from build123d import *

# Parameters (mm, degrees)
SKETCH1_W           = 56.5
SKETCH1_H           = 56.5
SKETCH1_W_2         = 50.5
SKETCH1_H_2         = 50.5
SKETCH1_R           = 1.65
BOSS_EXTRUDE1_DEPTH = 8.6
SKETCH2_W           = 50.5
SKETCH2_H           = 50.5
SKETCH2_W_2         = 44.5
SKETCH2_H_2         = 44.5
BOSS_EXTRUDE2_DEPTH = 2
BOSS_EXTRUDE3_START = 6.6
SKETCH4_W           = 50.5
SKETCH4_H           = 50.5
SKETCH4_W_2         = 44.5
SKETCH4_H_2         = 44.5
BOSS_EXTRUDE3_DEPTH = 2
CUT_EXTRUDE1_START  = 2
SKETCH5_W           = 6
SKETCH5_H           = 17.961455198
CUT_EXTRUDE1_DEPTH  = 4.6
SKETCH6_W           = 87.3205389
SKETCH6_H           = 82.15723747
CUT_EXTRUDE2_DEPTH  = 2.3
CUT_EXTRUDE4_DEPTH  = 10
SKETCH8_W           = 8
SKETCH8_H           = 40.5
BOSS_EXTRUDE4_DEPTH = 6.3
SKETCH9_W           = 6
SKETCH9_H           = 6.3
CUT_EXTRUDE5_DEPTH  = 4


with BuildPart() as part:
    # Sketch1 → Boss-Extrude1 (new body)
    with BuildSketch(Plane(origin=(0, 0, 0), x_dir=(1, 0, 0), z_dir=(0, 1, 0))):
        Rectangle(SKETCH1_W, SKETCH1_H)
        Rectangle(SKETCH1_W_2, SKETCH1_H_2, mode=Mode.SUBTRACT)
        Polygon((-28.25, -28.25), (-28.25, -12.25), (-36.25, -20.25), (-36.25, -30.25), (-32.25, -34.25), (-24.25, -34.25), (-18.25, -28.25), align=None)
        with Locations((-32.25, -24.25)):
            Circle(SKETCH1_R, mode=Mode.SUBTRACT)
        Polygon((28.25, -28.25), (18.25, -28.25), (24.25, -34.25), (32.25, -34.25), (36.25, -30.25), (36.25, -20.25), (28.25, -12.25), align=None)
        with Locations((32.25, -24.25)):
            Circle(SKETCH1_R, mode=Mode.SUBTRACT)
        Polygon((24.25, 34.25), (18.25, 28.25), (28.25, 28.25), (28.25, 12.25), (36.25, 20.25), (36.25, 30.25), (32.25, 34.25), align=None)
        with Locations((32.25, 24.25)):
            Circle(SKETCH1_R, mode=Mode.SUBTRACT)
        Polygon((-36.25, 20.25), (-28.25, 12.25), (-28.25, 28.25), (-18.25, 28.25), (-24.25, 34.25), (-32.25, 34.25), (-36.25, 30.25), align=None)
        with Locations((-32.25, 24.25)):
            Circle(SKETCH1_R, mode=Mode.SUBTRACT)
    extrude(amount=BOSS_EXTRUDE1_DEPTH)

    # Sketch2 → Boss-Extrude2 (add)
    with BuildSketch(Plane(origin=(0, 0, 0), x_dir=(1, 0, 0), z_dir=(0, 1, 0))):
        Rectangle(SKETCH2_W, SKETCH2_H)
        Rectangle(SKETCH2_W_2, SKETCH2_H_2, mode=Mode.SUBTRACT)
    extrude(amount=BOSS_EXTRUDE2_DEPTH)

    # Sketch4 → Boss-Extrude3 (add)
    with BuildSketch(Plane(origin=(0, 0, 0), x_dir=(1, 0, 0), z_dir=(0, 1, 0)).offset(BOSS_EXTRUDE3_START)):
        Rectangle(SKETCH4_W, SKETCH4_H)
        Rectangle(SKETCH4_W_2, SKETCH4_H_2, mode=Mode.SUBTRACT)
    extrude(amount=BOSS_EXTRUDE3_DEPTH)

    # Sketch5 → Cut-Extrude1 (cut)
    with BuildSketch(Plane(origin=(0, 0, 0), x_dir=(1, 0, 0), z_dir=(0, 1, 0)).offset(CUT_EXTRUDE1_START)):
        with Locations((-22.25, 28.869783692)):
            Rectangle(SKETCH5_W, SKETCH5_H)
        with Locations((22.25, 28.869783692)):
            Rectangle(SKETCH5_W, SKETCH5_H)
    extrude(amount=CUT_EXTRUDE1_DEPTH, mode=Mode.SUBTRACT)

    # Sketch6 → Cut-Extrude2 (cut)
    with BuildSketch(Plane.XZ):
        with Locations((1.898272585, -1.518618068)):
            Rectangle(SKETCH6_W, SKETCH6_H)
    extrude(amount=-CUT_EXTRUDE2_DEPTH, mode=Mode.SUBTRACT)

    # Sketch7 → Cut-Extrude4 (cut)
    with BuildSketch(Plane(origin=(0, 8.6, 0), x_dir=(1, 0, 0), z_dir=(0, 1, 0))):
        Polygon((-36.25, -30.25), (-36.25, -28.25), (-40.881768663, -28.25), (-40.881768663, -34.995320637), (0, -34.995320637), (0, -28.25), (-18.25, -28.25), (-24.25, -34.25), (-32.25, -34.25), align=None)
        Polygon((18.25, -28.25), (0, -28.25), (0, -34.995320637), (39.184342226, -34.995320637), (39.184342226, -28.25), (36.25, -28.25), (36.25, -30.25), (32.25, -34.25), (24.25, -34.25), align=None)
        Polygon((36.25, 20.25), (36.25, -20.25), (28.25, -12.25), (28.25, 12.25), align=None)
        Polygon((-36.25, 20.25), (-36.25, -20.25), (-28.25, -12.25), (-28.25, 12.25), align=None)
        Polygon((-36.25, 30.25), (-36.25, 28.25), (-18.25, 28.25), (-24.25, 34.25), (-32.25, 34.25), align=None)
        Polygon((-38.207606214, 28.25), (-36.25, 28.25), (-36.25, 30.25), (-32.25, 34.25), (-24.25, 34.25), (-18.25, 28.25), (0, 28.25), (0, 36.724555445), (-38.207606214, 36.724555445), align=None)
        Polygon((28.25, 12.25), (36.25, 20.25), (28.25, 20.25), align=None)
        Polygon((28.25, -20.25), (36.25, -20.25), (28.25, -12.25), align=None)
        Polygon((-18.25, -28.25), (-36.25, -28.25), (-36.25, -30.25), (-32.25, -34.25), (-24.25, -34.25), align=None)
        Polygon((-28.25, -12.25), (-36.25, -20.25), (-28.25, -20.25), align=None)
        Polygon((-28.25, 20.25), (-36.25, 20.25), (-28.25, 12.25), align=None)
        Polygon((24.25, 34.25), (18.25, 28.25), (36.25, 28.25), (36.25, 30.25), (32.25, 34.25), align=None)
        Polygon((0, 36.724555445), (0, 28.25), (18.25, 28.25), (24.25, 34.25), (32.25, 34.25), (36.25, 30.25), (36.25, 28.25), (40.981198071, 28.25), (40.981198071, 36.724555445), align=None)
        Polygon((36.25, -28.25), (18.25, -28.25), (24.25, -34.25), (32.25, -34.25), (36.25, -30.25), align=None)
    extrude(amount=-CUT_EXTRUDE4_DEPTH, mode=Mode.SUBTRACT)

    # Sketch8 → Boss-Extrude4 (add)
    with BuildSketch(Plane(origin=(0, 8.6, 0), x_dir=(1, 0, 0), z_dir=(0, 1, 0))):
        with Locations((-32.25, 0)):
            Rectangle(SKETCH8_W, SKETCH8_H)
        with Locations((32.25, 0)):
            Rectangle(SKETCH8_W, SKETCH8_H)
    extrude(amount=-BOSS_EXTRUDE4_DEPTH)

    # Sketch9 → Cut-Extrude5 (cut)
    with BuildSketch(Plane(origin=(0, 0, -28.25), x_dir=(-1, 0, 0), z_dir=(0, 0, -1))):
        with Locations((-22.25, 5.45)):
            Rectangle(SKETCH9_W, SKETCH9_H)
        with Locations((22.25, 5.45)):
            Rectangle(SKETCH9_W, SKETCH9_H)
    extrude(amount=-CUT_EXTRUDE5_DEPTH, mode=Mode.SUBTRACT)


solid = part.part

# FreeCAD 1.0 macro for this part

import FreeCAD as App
import Part
import Sketcher
from FreeCAD import Vector
Q = App.Units.Quantity

doc = App.newDocument("Part")
body = doc.addObject("PartDesign::Body", "Body")

sketch1 = body.newObject("Sketcher::SketchObject", "Sketch")
sketch1.AttachmentSupport = (doc.getObject("XZ_Plane"), [""])
sketch1.MapMode = "FlatFace"
sketch1.addGeometry([
    Part.LineSegment(Vector(-28.25, -12.25, 0), Vector(-28.25, 12.25, 0)),
    Part.LineSegment(Vector(-28.25, 12.25, 0), Vector(-36.25, 20.25, 0)),
    Part.LineSegment(Vector(-36.25, 20.25, 0), Vector(-36.25, 30.25, 0)),
    Part.LineSegment(Vector(-36.25, 30.25, 0), Vector(-32.25, 34.25, 0)),
    Part.LineSegment(Vector(-32.25, 34.25, 0), Vector(-24.25, 34.25, 0)),
    Part.LineSegment(Vector(-24.25, 34.25, 0), Vector(-18.25, 28.25, 0)),
    Part.LineSegment(Vector(-18.25, 28.25, 0), Vector(18.25, 28.25, 0)),
    Part.LineSegment(Vector(18.25, 28.25, 0), Vector(24.25, 34.25, 0)),
    Part.LineSegment(Vector(24.25, 34.25, 0), Vector(32.25, 34.25, 0)),
    Part.LineSegment(Vector(32.25, 34.25, 0), Vector(36.25, 30.25, 0)),
    Part.LineSegment(Vector(36.25, 30.25, 0), Vector(36.25, 20.25, 0)),
    Part.LineSegment(Vector(36.25, 20.25, 0), Vector(28.25, 12.25, 0)),
    Part.LineSegment(Vector(28.25, 12.25, 0), Vector(28.25, -12.25, 0)),
    Part.LineSegment(Vector(28.25, -12.25, 0), Vector(36.25, -20.25, 0)),
    Part.LineSegment(Vector(36.25, -20.25, 0), Vector(36.25, -30.25, 0)),
    Part.LineSegment(Vector(36.25, -30.25, 0), Vector(32.25, -34.25, 0)),
    Part.LineSegment(Vector(32.25, -34.25, 0), Vector(24.25, -34.25, 0)),
    Part.LineSegment(Vector(24.25, -34.25, 0), Vector(18.25, -28.25, 0)),
    Part.LineSegment(Vector(18.25, -28.25, 0), Vector(-18.25, -28.25, 0)),
    Part.LineSegment(Vector(-18.25, -28.25, 0), Vector(-24.25, -34.25, 0)),
    Part.LineSegment(Vector(-24.25, -34.25, 0), Vector(-32.25, -34.25, 0)),
    Part.LineSegment(Vector(-32.25, -34.25, 0), Vector(-36.25, -30.25, 0)),
    Part.LineSegment(Vector(-36.25, -30.25, 0), Vector(-36.25, -20.25, 0)),
    Part.LineSegment(Vector(-36.25, -20.25, 0), Vector(-28.25, -12.25, 0)),
    Part.Circle(Vector(-32.25, 24.25, 0), Vector(0, 0, 1), 1.65),
    Part.LineSegment(Vector(25.25, 25.25, 0), Vector(-25.25, 25.25, 0)),
    Part.LineSegment(Vector(-25.25, 25.25, 0), Vector(-25.25, -25.25, 0)),
    Part.LineSegment(Vector(-25.25, -25.25, 0), Vector(25.25, -25.25, 0)),
    Part.LineSegment(Vector(25.25, -25.25, 0), Vector(25.25, 25.25, 0)),
    Part.Circle(Vector(32.25, 24.25, 0), Vector(0, 0, 1), 1.65),
    Part.Circle(Vector(-32.25, -24.25, 0), Vector(0, 0, 1), 1.65),
    Part.Circle(Vector(32.25, -24.25, 0), Vector(0, 0, 1), 1.65),
], False)
sketch1.addConstraint([
    Sketcher.Constraint("Coincident", 0, 2, 1, 1),
    Sketcher.Constraint("Coincident", 1, 2, 2, 1),
    Sketcher.Constraint("Coincident", 2, 2, 3, 1),
    Sketcher.Constraint("Coincident", 3, 2, 4, 1),
    Sketcher.Constraint("Coincident", 4, 2, 5, 1),
    Sketcher.Constraint("Coincident", 5, 2, 6, 1),
    Sketcher.Constraint("Coincident", 6, 2, 7, 1),
    Sketcher.Constraint("Coincident", 7, 2, 8, 1),
    Sketcher.Constraint("Coincident", 8, 2, 9, 1),
    Sketcher.Constraint("Coincident", 9, 2, 10, 1),
    Sketcher.Constraint("Coincident", 10, 2, 11, 1),
    Sketcher.Constraint("Coincident", 11, 2, 12, 1),
    Sketcher.Constraint("Coincident", 12, 2, 13, 1),
    Sketcher.Constraint("Coincident", 13, 2, 14, 1),
    Sketcher.Constraint("Coincident", 14, 2, 15, 1),
    Sketcher.Constraint("Coincident", 15, 2, 16, 1),
    Sketcher.Constraint("Coincident", 16, 2, 17, 1),
    Sketcher.Constraint("Coincident", 17, 2, 18, 1),
    Sketcher.Constraint("Coincident", 18, 2, 19, 1),
    Sketcher.Constraint("Coincident", 19, 2, 20, 1),
    Sketcher.Constraint("Coincident", 20, 2, 21, 1),
    Sketcher.Constraint("Coincident", 21, 2, 22, 1),
    Sketcher.Constraint("Coincident", 22, 2, 23, 1),
    Sketcher.Constraint("Coincident", 23, 2, 0, 1),
    Sketcher.Constraint("Coincident", 25, 2, 26, 1),
    Sketcher.Constraint("Coincident", 26, 2, 27, 1),
    Sketcher.Constraint("Coincident", 27, 2, 28, 1),
    Sketcher.Constraint("Coincident", 28, 2, 25, 1),
    Sketcher.Constraint("Vertical", 0),
    Sketcher.Constraint("Vertical", 2),
    Sketcher.Constraint("Horizontal", 4),
    Sketcher.Constraint("Horizontal", 6),
    Sketcher.Constraint("Horizontal", 8),
    Sketcher.Constraint("Vertical", 10),
    Sketcher.Constraint("Vertical", 12),
    Sketcher.Constraint("Vertical", 14),
    Sketcher.Constraint("Horizontal", 16),
    Sketcher.Constraint("Horizontal", 18),
    Sketcher.Constraint("Horizontal", 20),
    Sketcher.Constraint("Vertical", 22),
    Sketcher.Constraint("Horizontal", 25),
    Sketcher.Constraint("Vertical", 26),
    Sketcher.Constraint("Horizontal", 27),
    Sketcher.Constraint("Vertical", 28),
    Sketcher.Constraint("Equal", 24, 29),
    Sketcher.Constraint("Equal", 29, 30),
    Sketcher.Constraint("Equal", 30, 31),
    Sketcher.Constraint("Symmetric", 29, 3, 30, 3, -1, 1),
    Sketcher.Constraint("Symmetric", 24, 3, 31, 3, -1, 1),
    Sketcher.Constraint("Symmetric", 0, 2, 12, 2, -1, 1),
    Sketcher.Constraint("Symmetric", 1, 2, 13, 2, -1, 1),
    Sketcher.Constraint("Symmetric", 3, 2, 15, 2, -1, 1),
    Sketcher.Constraint("Symmetric", 5, 2, 17, 2, -1, 1),
    Sketcher.Constraint("Symmetric", 7, 2, 19, 2, -1, 1),
    Sketcher.Constraint("Symmetric", 9, 2, 21, 2, -1, 1),
    Sketcher.Constraint("Symmetric", 25, 2, 27, 2, -1, 1),
    Sketcher.Constraint("Symmetric", 24, 3, 29, 3, -2),
    Sketcher.Constraint("Symmetric", 4, 2, 7, 2, -2),
    Sketcher.Constraint("Symmetric", 2, 2, 9, 2, -2),
    Sketcher.Constraint("Perpendicular", 1, 3),
    Sketcher.Constraint("Perpendicular", 3, 5),
    Sketcher.Constraint("Perpendicular", 5, 7),
    Sketcher.Constraint("Perpendicular", 7, 9),
    Sketcher.Constraint("Perpendicular", 9, 11),
    Sketcher.Constraint("Perpendicular", 13, 15),
    Sketcher.Constraint("Perpendicular", 15, 17),
    Sketcher.Constraint("Perpendicular", 17, 19),
    Sketcher.Constraint("Perpendicular", 19, 21),
    Sketcher.Constraint("Perpendicular", 21, 23),
    Sketcher.Constraint("Horizontal", 1, 2, 10, 2),
    Sketcher.Constraint("Horizontal", 0, 2, 11, 2),
    Sketcher.Constraint("Horizontal", 13, 2, 22, 2),
    Sketcher.Constraint("Vertical", 30, 3, 3, 2),
    Sketcher.Constraint("Equal", 27, 26),
    Sketcher.Constraint("Diameter", 24, Q("3.3 mm")),
    Sketcher.Constraint("DistanceX", 4, 1, 4, 2, Q("8 mm")),
    Sketcher.Constraint("DistanceY", 2, 1, 2, 2, Q("10 mm")),
    Sketcher.Constraint("DistanceX", 6, 1, 6, 2, Q("36.5 mm")),
    Sketcher.Constraint("DistanceX", 25, 2, 25, 1, Q("50.5 mm")),
    Sketcher.Constraint("DistanceY", 0, 1, 0, 2, Q("24.5 mm")),
    Sketcher.Constraint("DistanceX", 24, 3, 0, 2, Q("4 mm")),
    Sketcher.Constraint("DistanceY", 0, 2, 24, 3, Q("12 mm")),
    Sketcher.Constraint("DistanceX", 1, 2, 24, 3, Q("4 mm")),
    Sketcher.Constraint("DistanceX", 4, 2, 5, 2, Q("6 mm")),
])
pad1 = body.newObject("PartDesign::Pad", "Pad")
pad1.Profile = sketch1
pad1.Length = 8.6
pad1.Reversed = True

sketch2 = body.newObject("Sketcher::SketchObject", "Sketch001")
sketch2.AttachmentSupport = (doc.getObject("XZ_Plane"), [""])
sketch2.MapMode = "FlatFace"
sketch2.addGeometry([
    Part.LineSegment(Vector(-25.25, -25.25, 0), Vector(-25.25, 25.25, 0)),
    Part.LineSegment(Vector(-25.25, 25.25, 0), Vector(25.25, 25.25, 0)),
    Part.LineSegment(Vector(25.25, 25.25, 0), Vector(25.25, -25.25, 0)),
    Part.LineSegment(Vector(25.25, -25.25, 0), Vector(-25.25, -25.25, 0)),
    Part.LineSegment(Vector(22.25, 22.25, 0), Vector(-22.25, 22.25, 0)),
    Part.LineSegment(Vector(-22.25, 22.25, 0), Vector(-22.25, -22.25, 0)),
    Part.LineSegment(Vector(-22.25, -22.25, 0), Vector(22.25, -22.25, 0)),
    Part.LineSegment(Vector(22.25, -22.25, 0), Vector(22.25, 22.25, 0)),
], False)
sketch2.addConstraint([
    Sketcher.Constraint("Coincident", 0, 2, 1, 1),
    Sketcher.Constraint("Coincident", 1, 2, 2, 1),
    Sketcher.Constraint("Coincident", 2, 2, 3, 1),
    Sketcher.Constraint("Coincident", 3, 2, 0, 1),
    Sketcher.Constraint("Coincident", 4, 2, 5, 1),
    Sketcher.Constraint("Coincident", 5, 2, 6, 1),
    Sketcher.Constraint("Coincident", 6, 2, 7, 1),
    Sketcher.Constraint("Coincident", 7, 2, 4, 1),
    Sketcher.Constraint("Vertical", 0),
    Sketcher.Constraint("Horizontal", 1),
    Sketcher.Constraint("Vertical", 2),
    Sketcher.Constraint("Horizontal", 3),
    Sketcher.Constraint("Horizontal", 4),
    Sketcher.Constraint("Vertical", 5),
    Sketcher.Constraint("Horizontal", 6),
    Sketcher.Constraint("Vertical", 7),
    Sketcher.Constraint("Symmetric", 0, 2, 2, 2, -1, 1),
    Sketcher.Constraint("Symmetric", 4, 2, 6, 2, -1, 1),
    Sketcher.Constraint("Equal", 3, 0),
    Sketcher.Constraint("Equal", 6, 5),
    Sketcher.Constraint("DistanceX", 1, 1, 1, 2, Q("50.5 mm")),
    Sketcher.Constraint("DistanceX", 4, 2, 4, 1, Q("44.5 mm")),
])
pad2 = body.newObject("PartDesign::Pad", "Pad001")
pad2.Profile = sketch2
pad2.Length = 2
pad2.Reversed = True

sketch3 = body.newObject("Sketcher::SketchObject", "Sketch002")
sketch3.AttachmentSupport = (doc.getObject("XZ_Plane"), [""])
sketch3.MapMode = "FlatFace"
sketch3.AttachmentOffset = App.Placement(Vector(0, 0, -6.6), App.Rotation())
sketch3.addGeometry([
    Part.LineSegment(Vector(-25.25, -25.25, 0), Vector(-25.25, 25.25, 0)),
    Part.LineSegment(Vector(-25.25, 25.25, 0), Vector(25.25, 25.25, 0)),
    Part.LineSegment(Vector(25.25, 25.25, 0), Vector(25.25, -25.25, 0)),
    Part.LineSegment(Vector(25.25, -25.25, 0), Vector(-25.25, -25.25, 0)),
    Part.LineSegment(Vector(22.25, 22.25, 0), Vector(-22.25, 22.25, 0)),
    Part.LineSegment(Vector(-22.25, 22.25, 0), Vector(-22.25, -22.25, 0)),
    Part.LineSegment(Vector(-22.25, -22.25, 0), Vector(22.25, -22.25, 0)),
    Part.LineSegment(Vector(22.25, -22.25, 0), Vector(22.25, 22.25, 0)),
], False)
sketch3.addConstraint([
    Sketcher.Constraint("Coincident", 0, 2, 1, 1),
    Sketcher.Constraint("Coincident", 1, 2, 2, 1),
    Sketcher.Constraint("Coincident", 2, 2, 3, 1),
    Sketcher.Constraint("Coincident", 3, 2, 0, 1),
    Sketcher.Constraint("Coincident", 4, 2, 5, 1),
    Sketcher.Constraint("Coincident", 5, 2, 6, 1),
    Sketcher.Constraint("Coincident", 6, 2, 7, 1),
    Sketcher.Constraint("Coincident", 7, 2, 4, 1),
    Sketcher.Constraint("Vertical", 0),
    Sketcher.Constraint("Horizontal", 1),
    Sketcher.Constraint("Vertical", 2),
    Sketcher.Constraint("Horizontal", 3),
    Sketcher.Constraint("Horizontal", 4),
    Sketcher.Constraint("Vertical", 5),
    Sketcher.Constraint("Horizontal", 6),
    Sketcher.Constraint("Vertical", 7),
    Sketcher.Constraint("Symmetric", 0, 2, 2, 2, -1, 1),
    Sketcher.Constraint("Symmetric", 4, 2, 6, 2, -1, 1),
    Sketcher.Constraint("Equal", 3, 0),
    Sketcher.Constraint("Equal", 6, 5),
    Sketcher.Constraint("DistanceX", 1, 1, 1, 2, Q("50.5 mm")),
    Sketcher.Constraint("DistanceX", 4, 2, 4, 1, Q("44.5 mm")),
])
pad3 = body.newObject("PartDesign::Pad", "Pad002")
pad3.Profile = sketch3
pad3.Length = 2
pad3.Reversed = True

sketch4 = body.newObject("Sketcher::SketchObject", "Sketch003")
sketch4.AttachmentSupport = (doc.getObject("XZ_Plane"), [""])
sketch4.MapMode = "FlatFace"
sketch4.AttachmentOffset = App.Placement(Vector(0, 0, -2), App.Rotation())
sketch4.addGeometry([
    Part.LineSegment(Vector(-25.25, -37.850511, 0), Vector(-25.25, -19.889056, 0)),
    Part.LineSegment(Vector(-25.25, -19.889056, 0), Vector(-19.25, -19.889056, 0)),
    Part.LineSegment(Vector(-19.25, -19.889056, 0), Vector(-19.25, -37.850511, 0)),
    Part.LineSegment(Vector(-19.25, -37.850511, 0), Vector(-25.25, -37.850511, 0)),
    Part.LineSegment(Vector(19.25, -37.850511, 0), Vector(19.25, -19.889056, 0)),
    Part.LineSegment(Vector(19.25, -19.889056, 0), Vector(25.25, -19.889056, 0)),
    Part.LineSegment(Vector(25.25, -19.889056, 0), Vector(25.25, -37.850511, 0)),
    Part.LineSegment(Vector(25.25, -37.850511, 0), Vector(19.25, -37.850511, 0)),
], False)
sketch4.addConstraint([
    Sketcher.Constraint("Coincident", 0, 2, 1, 1),
    Sketcher.Constraint("Coincident", 1, 2, 2, 1),
    Sketcher.Constraint("Coincident", 2, 2, 3, 1),
    Sketcher.Constraint("Coincident", 3, 2, 0, 1),
    Sketcher.Constraint("Coincident", 4, 2, 5, 1),
    Sketcher.Constraint("Coincident", 5, 2, 6, 1),
    Sketcher.Constraint("Coincident", 6, 2, 7, 1),
    Sketcher.Constraint("Coincident", 7, 2, 4, 1),
    Sketcher.Constraint("Vertical", 0),
    Sketcher.Constraint("Horizontal", 1),
    Sketcher.Constraint("Vertical", 2),
    Sketcher.Constraint("Horizontal", 3),
    Sketcher.Constraint("Vertical", 4),
    Sketcher.Constraint("Horizontal", 5),
    Sketcher.Constraint("Vertical", 6),
    Sketcher.Constraint("Horizontal", 7),
    Sketcher.Constraint("Symmetric", 1, 2, 4, 2, -2),
    Sketcher.Constraint("Symmetric", 3, 2, 6, 2, -2),
    Sketcher.Constraint("DistanceX", 1, 1, 1, 2, Q("6 mm")),
    Sketcher.Constraint("DistanceX", 1, 2, 4, 2, Q("38.5 mm")),
    Sketcher.Constraint("DistanceY", 0, 1, 0, 2, Q("17.961455 mm")),
    Sketcher.Constraint("DistanceY", 2, 2, -1, 1, Q("37.850511 mm")),
])
pocket1 = body.newObject("PartDesign::Pocket", "Pocket")
pocket1.Profile = sketch4
pocket1.Length = 4.6

sketch5 = body.newObject("Sketcher::SketchObject", "Sketch004")
sketch5.AttachmentSupport = (doc.getObject("XZ_Plane"), [""])
sketch5.MapMode = "FlatFace"
sketch5.addGeometry([
    Part.LineSegment(Vector(-41.761997, 39.560001, 0), Vector(-41.761997, -42.597237, 0)),
    Part.LineSegment(Vector(-41.761997, -42.597237, 0), Vector(45.558542, -42.597237, 0)),
    Part.LineSegment(Vector(45.558542, -42.597237, 0), Vector(45.558542, 39.560001, 0)),
    Part.LineSegment(Vector(45.558542, 39.560001, 0), Vector(-41.761997, 39.560001, 0)),
], False)
sketch5.addConstraint([
    Sketcher.Constraint("Coincident", 0, 2, 1, 1),
    Sketcher.Constraint("Coincident", 1, 2, 2, 1),
    Sketcher.Constraint("Coincident", 2, 2, 3, 1),
    Sketcher.Constraint("Coincident", 3, 2, 0, 1),
    Sketcher.Constraint("Vertical", 0),
    Sketcher.Constraint("Horizontal", 1),
    Sketcher.Constraint("Vertical", 2),
    Sketcher.Constraint("Horizontal", 3),
    Sketcher.Constraint("DistanceY", -1, 1, 2, 2, Q("39.560001 mm")),
    Sketcher.Constraint("DistanceX", 1, 1, 1, 2, Q("87.320539 mm")),
    Sketcher.Constraint("DistanceY", 0, 2, 0, 1, Q("82.157237 mm")),
    Sketcher.Constraint("DistanceX", 0, 2, -1, 1, Q("41.761997 mm")),
])
pocket2 = body.newObject("PartDesign::Pocket", "Pocket001")
pocket2.Profile = sketch5
pocket2.Length = 2.3

sketch6 = body.newObject("Sketcher::SketchObject", "Sketch005")
sketch6.AttachmentSupport = (doc.getObject("XZ_Plane"), [""])
sketch6.MapMode = "FlatFace"
sketch6.AttachmentOffset = App.Placement(Vector(0, 0, -8.6), App.Rotation())
sketch6.addGeometry([
    Part.LineSegment(Vector(-40.881769, 28.25, 0), Vector(-40.881769, 34.995321, 0)),
    Part.LineSegment(Vector(-40.881769, 34.995321, 0), Vector(39.184342, 34.995321, 0)),
    Part.LineSegment(Vector(39.184342, 34.995321, 0), Vector(39.184342, 28.25, 0)),
    Part.LineSegment(Vector(39.184342, 28.25, 0), Vector(-40.881769, 28.25, 0)),
    Part.LineSegment(Vector(36.25, 20.25, 0), Vector(36.25, -20.25, 0)),
    Part.LineSegment(Vector(36.25, -20.25, 0), Vector(28.25, -20.25, 0)),
    Part.LineSegment(Vector(28.25, -20.25, 0), Vector(28.25, 20.25, 0)),
    Part.LineSegment(Vector(28.25, 20.25, 0), Vector(36.25, 20.25, 0)),
    Part.LineSegment(Vector(-36.25, -20.25, 0), Vector(-36.25, 20.25, 0)),
    Part.LineSegment(Vector(-36.25, 20.25, 0), Vector(-28.25, 20.25, 0)),
    Part.LineSegment(Vector(-28.25, 20.25, 0), Vector(-28.25, -20.25, 0)),
    Part.LineSegment(Vector(-28.25, -20.25, 0), Vector(-36.25, -20.25, 0)),
    Part.LineSegment(Vector(-38.207606, -36.724555, 0), Vector(-38.207606, -28.25, 0)),
    Part.LineSegment(Vector(-38.207606, -28.25, 0), Vector(40.981198, -28.25, 0)),
    Part.LineSegment(Vector(40.981198, -28.25, 0), Vector(40.981198, -36.724555, 0)),
    Part.LineSegment(Vector(40.981198, -36.724555, 0), Vector(-38.207606, -36.724555, 0)),
], False)
sketch6.addConstraint([
    Sketcher.Constraint("Coincident", 0, 2, 1, 1),
    Sketcher.Constraint("Coincident", 1, 2, 2, 1),
    Sketcher.Constraint("Coincident", 2, 2, 3, 1),
    Sketcher.Constraint("Coincident", 3, 2, 0, 1),
    Sketcher.Constraint("Coincident", 4, 2, 5, 1),
    Sketcher.Constraint("Coincident", 5, 2, 6, 1),
    Sketcher.Constraint("Coincident", 6, 2, 7, 1),
    Sketcher.Constraint("Coincident", 7, 2, 4, 1),
    Sketcher.Constraint("Coincident", 8, 2, 9, 1),
    Sketcher.Constraint("Coincident", 9, 2, 10, 1),
    Sketcher.Constraint("Coincident", 10, 2, 11, 1),
    Sketcher.Constraint("Coincident", 11, 2, 8, 1),
    Sketcher.Constraint("Coincident", 12, 2, 13, 1),
    Sketcher.Constraint("Coincident", 13, 2, 14, 1),
    Sketcher.Constraint("Coincident", 14, 2, 15, 1),
    Sketcher.Constraint("Coincident", 15, 2, 12, 1),
    Sketcher.Constraint("Vertical", 0),
    Sketcher.Constraint("Horizontal", 1),
    Sketcher.Constraint("Vertical", 2),
    Sketcher.Constraint("Horizontal", 3),
    Sketcher.Constraint("Vertical", 4),
    Sketcher.Constraint("Horizontal", 5),
    Sketcher.Constraint("Vertical", 6),
    Sketcher.Constraint("Horizontal", 7),
    Sketcher.Constraint("Vertical", 8),
    Sketcher.Constraint("Horizontal", 9),
    Sketcher.Constraint("Vertical", 10),
    Sketcher.Constraint("Horizontal", 11),
    Sketcher.Constraint("Vertical", 12),
    Sketcher.Constraint("Horizontal", 13),
    Sketcher.Constraint("Vertical", 14),
    Sketcher.Constraint("Horizontal", 15),
    Sketcher.Constraint("Symmetric", 4, 2, 8, 2, -1, 1),
    Sketcher.Constraint("Symmetric", 6, 2, 10, 2, -1, 1),
    Sketcher.Constraint("Horizontal", 7, 2, 8, 2),
    Sketcher.Constraint("DistanceX", 5, 2, 5, 1, Q("8 mm")),
    Sketcher.Constraint("DistanceY", 4, 2, 4, 1, Q("40.5 mm")),
    Sketcher.Constraint("DistanceY", 6, 2, 2, 2, Q("8 mm")),
    Sketcher.Constraint("DistanceY", 12, 2, 11, 2, Q("8 mm")),
    Sketcher.Constraint("DistanceX", 8, 2, 6, 2, Q("64.5 mm")),
    Sketcher.Constraint("DistanceX", 1, 1, 1, 2, Q("80.066111 mm")),
    Sketcher.Constraint("DistanceY", 0, 1, 0, 2, Q("6.745321 mm")),
    Sketcher.Constraint("DistanceX", -1, 1, 13, 2, Q("40.981198 mm")),
    Sketcher.Constraint("DistanceX", 13, 1, 13, 2, Q("79.188804 mm")),
    Sketcher.Constraint("DistanceY", 12, 1, 12, 2, Q("8.474555 mm")),
    Sketcher.Constraint("DistanceX", 0, 2, -1, 1, Q("40.881769 mm")),
])
pocket3 = body.newObject("PartDesign::Pocket", "Pocket002")
pocket3.Profile = sketch6
pocket3.Length = 10
pocket3.Reversed = True

sketch7 = body.newObject("Sketcher::SketchObject", "Sketch006")
sketch7.AttachmentSupport = (doc.getObject("XZ_Plane"), [""])
sketch7.MapMode = "FlatFace"
sketch7.AttachmentOffset = App.Placement(Vector(0, 0, -8.6), App.Rotation())
sketch7.addGeometry([
    Part.LineSegment(Vector(-36.25, -20.25, 0), Vector(-36.25, 20.25, 0)),
    Part.LineSegment(Vector(-36.25, 20.25, 0), Vector(-28.25, 20.25, 0)),
    Part.LineSegment(Vector(-28.25, 20.25, 0), Vector(-28.25, -20.25, 0)),
    Part.LineSegment(Vector(-28.25, -20.25, 0), Vector(-36.25, -20.25, 0)),
    Part.LineSegment(Vector(28.25, -20.25, 0), Vector(28.25, 20.25, 0)),
    Part.LineSegment(Vector(28.25, 20.25, 0), Vector(36.25, 20.25, 0)),
    Part.LineSegment(Vector(36.25, 20.25, 0), Vector(36.25, -20.25, 0)),
    Part.LineSegment(Vector(36.25, -20.25, 0), Vector(28.25, -20.25, 0)),
], False)
sketch7.addConstraint([
    Sketcher.Constraint("Coincident", 0, 2, 1, 1),
    Sketcher.Constraint("Coincident", 1, 2, 2, 1),
    Sketcher.Constraint("Coincident", 2, 2, 3, 1),
    Sketcher.Constraint("Coincident", 3, 2, 0, 1),
    Sketcher.Constraint("Coincident", 4, 2, 5, 1),
    Sketcher.Constraint("Coincident", 5, 2, 6, 1),
    Sketcher.Constraint("Coincident", 6, 2, 7, 1),
    Sketcher.Constraint("Coincident", 7, 2, 4, 1),
    Sketcher.Constraint("Vertical", 0),
    Sketcher.Constraint("Horizontal", 1),
    Sketcher.Constraint("Vertical", 2),
    Sketcher.Constraint("Horizontal", 3),
    Sketcher.Constraint("Vertical", 4),
    Sketcher.Constraint("Horizontal", 5),
    Sketcher.Constraint("Vertical", 6),
    Sketcher.Constraint("Horizontal", 7),
    Sketcher.Constraint("Symmetric", 2, 2, 4, 2, -1, 1),
    Sketcher.Constraint("Symmetric", 0, 2, 6, 2, -1, 1),
    Sketcher.Constraint("Horizontal", 1, 2, 4, 2),
    Sketcher.Constraint("DistanceX", 1, 1, 1, 2, Q("8 mm")),
    Sketcher.Constraint("DistanceY", 0, 1, 0, 2, Q("40.5 mm")),
    Sketcher.Constraint("DistanceX", 1, 2, 4, 2, Q("56.5 mm")),
])
pad4 = body.newObject("PartDesign::Pad", "Pad003")
pad4.Profile = sketch7
pad4.Length = 6.3

sketch8 = body.newObject("Sketcher::SketchObject", "Sketch007")
sketch8.AttachmentSupport = (doc.getObject("XY_Plane"), [""])
sketch8.MapMode = "FlatFace"
sketch8.AttachmentOffset = App.Placement(Vector(0, 0, -28.25), App.Rotation())
sketch8.addGeometry([
    Part.LineSegment(Vector(25.25, 8.6, 0), Vector(25.25, 2.3, 0)),
    Part.LineSegment(Vector(25.25, 2.3, 0), Vector(19.25, 2.3, 0)),
    Part.LineSegment(Vector(19.25, 2.3, 0), Vector(19.25, 8.6, 0)),
    Part.LineSegment(Vector(19.25, 8.6, 0), Vector(25.25, 8.6, 0)),
    Part.LineSegment(Vector(-19.25, 8.6, 0), Vector(-19.25, 2.3, 0)),
    Part.LineSegment(Vector(-19.25, 2.3, 0), Vector(-25.25, 2.3, 0)),
    Part.LineSegment(Vector(-25.25, 2.3, 0), Vector(-25.25, 8.6, 0)),
    Part.LineSegment(Vector(-25.25, 8.6, 0), Vector(-19.25, 8.6, 0)),
], False)
sketch8.addConstraint([
    Sketcher.Constraint("Coincident", 0, 2, 1, 1),
    Sketcher.Constraint("Coincident", 1, 2, 2, 1),
    Sketcher.Constraint("Coincident", 2, 2, 3, 1),
    Sketcher.Constraint("Coincident", 3, 2, 0, 1),
    Sketcher.Constraint("Coincident", 4, 2, 5, 1),
    Sketcher.Constraint("Coincident", 5, 2, 6, 1),
    Sketcher.Constraint("Coincident", 6, 2, 7, 1),
    Sketcher.Constraint("Coincident", 7, 2, 4, 1),
    Sketcher.Constraint("Vertical", 0),
    Sketcher.Constraint("Horizontal", 1),
    Sketcher.Constraint("Vertical", 2),
    Sketcher.Constraint("Horizontal", 3),
    Sketcher.Constraint("Vertical", 4),
    Sketcher.Constraint("Horizontal", 5),
    Sketcher.Constraint("Vertical", 6),
    Sketcher.Constraint("Horizontal", 7),
    Sketcher.Constraint("Symmetric", 1, 2, 4, 2, -2),
    Sketcher.Constraint("Symmetric", 3, 2, 6, 2, -2),
    Sketcher.Constraint("DistanceX", 1, 2, 1, 1, Q("6 mm")),
    Sketcher.Constraint("DistanceY", 0, 2, 0, 1, Q("6.3 mm")),
    Sketcher.Constraint("DistanceY", -1, 1, 0, 2, Q("2.3 mm")),
    Sketcher.Constraint("DistanceX", 4, 2, 1, 2, Q("38.5 mm")),
])
pocket4 = body.newObject("PartDesign::Pocket", "Pocket003")
pocket4.Profile = sketch8
pocket4.Length = 4
pocket4.Reversed = True

doc.recompute()
